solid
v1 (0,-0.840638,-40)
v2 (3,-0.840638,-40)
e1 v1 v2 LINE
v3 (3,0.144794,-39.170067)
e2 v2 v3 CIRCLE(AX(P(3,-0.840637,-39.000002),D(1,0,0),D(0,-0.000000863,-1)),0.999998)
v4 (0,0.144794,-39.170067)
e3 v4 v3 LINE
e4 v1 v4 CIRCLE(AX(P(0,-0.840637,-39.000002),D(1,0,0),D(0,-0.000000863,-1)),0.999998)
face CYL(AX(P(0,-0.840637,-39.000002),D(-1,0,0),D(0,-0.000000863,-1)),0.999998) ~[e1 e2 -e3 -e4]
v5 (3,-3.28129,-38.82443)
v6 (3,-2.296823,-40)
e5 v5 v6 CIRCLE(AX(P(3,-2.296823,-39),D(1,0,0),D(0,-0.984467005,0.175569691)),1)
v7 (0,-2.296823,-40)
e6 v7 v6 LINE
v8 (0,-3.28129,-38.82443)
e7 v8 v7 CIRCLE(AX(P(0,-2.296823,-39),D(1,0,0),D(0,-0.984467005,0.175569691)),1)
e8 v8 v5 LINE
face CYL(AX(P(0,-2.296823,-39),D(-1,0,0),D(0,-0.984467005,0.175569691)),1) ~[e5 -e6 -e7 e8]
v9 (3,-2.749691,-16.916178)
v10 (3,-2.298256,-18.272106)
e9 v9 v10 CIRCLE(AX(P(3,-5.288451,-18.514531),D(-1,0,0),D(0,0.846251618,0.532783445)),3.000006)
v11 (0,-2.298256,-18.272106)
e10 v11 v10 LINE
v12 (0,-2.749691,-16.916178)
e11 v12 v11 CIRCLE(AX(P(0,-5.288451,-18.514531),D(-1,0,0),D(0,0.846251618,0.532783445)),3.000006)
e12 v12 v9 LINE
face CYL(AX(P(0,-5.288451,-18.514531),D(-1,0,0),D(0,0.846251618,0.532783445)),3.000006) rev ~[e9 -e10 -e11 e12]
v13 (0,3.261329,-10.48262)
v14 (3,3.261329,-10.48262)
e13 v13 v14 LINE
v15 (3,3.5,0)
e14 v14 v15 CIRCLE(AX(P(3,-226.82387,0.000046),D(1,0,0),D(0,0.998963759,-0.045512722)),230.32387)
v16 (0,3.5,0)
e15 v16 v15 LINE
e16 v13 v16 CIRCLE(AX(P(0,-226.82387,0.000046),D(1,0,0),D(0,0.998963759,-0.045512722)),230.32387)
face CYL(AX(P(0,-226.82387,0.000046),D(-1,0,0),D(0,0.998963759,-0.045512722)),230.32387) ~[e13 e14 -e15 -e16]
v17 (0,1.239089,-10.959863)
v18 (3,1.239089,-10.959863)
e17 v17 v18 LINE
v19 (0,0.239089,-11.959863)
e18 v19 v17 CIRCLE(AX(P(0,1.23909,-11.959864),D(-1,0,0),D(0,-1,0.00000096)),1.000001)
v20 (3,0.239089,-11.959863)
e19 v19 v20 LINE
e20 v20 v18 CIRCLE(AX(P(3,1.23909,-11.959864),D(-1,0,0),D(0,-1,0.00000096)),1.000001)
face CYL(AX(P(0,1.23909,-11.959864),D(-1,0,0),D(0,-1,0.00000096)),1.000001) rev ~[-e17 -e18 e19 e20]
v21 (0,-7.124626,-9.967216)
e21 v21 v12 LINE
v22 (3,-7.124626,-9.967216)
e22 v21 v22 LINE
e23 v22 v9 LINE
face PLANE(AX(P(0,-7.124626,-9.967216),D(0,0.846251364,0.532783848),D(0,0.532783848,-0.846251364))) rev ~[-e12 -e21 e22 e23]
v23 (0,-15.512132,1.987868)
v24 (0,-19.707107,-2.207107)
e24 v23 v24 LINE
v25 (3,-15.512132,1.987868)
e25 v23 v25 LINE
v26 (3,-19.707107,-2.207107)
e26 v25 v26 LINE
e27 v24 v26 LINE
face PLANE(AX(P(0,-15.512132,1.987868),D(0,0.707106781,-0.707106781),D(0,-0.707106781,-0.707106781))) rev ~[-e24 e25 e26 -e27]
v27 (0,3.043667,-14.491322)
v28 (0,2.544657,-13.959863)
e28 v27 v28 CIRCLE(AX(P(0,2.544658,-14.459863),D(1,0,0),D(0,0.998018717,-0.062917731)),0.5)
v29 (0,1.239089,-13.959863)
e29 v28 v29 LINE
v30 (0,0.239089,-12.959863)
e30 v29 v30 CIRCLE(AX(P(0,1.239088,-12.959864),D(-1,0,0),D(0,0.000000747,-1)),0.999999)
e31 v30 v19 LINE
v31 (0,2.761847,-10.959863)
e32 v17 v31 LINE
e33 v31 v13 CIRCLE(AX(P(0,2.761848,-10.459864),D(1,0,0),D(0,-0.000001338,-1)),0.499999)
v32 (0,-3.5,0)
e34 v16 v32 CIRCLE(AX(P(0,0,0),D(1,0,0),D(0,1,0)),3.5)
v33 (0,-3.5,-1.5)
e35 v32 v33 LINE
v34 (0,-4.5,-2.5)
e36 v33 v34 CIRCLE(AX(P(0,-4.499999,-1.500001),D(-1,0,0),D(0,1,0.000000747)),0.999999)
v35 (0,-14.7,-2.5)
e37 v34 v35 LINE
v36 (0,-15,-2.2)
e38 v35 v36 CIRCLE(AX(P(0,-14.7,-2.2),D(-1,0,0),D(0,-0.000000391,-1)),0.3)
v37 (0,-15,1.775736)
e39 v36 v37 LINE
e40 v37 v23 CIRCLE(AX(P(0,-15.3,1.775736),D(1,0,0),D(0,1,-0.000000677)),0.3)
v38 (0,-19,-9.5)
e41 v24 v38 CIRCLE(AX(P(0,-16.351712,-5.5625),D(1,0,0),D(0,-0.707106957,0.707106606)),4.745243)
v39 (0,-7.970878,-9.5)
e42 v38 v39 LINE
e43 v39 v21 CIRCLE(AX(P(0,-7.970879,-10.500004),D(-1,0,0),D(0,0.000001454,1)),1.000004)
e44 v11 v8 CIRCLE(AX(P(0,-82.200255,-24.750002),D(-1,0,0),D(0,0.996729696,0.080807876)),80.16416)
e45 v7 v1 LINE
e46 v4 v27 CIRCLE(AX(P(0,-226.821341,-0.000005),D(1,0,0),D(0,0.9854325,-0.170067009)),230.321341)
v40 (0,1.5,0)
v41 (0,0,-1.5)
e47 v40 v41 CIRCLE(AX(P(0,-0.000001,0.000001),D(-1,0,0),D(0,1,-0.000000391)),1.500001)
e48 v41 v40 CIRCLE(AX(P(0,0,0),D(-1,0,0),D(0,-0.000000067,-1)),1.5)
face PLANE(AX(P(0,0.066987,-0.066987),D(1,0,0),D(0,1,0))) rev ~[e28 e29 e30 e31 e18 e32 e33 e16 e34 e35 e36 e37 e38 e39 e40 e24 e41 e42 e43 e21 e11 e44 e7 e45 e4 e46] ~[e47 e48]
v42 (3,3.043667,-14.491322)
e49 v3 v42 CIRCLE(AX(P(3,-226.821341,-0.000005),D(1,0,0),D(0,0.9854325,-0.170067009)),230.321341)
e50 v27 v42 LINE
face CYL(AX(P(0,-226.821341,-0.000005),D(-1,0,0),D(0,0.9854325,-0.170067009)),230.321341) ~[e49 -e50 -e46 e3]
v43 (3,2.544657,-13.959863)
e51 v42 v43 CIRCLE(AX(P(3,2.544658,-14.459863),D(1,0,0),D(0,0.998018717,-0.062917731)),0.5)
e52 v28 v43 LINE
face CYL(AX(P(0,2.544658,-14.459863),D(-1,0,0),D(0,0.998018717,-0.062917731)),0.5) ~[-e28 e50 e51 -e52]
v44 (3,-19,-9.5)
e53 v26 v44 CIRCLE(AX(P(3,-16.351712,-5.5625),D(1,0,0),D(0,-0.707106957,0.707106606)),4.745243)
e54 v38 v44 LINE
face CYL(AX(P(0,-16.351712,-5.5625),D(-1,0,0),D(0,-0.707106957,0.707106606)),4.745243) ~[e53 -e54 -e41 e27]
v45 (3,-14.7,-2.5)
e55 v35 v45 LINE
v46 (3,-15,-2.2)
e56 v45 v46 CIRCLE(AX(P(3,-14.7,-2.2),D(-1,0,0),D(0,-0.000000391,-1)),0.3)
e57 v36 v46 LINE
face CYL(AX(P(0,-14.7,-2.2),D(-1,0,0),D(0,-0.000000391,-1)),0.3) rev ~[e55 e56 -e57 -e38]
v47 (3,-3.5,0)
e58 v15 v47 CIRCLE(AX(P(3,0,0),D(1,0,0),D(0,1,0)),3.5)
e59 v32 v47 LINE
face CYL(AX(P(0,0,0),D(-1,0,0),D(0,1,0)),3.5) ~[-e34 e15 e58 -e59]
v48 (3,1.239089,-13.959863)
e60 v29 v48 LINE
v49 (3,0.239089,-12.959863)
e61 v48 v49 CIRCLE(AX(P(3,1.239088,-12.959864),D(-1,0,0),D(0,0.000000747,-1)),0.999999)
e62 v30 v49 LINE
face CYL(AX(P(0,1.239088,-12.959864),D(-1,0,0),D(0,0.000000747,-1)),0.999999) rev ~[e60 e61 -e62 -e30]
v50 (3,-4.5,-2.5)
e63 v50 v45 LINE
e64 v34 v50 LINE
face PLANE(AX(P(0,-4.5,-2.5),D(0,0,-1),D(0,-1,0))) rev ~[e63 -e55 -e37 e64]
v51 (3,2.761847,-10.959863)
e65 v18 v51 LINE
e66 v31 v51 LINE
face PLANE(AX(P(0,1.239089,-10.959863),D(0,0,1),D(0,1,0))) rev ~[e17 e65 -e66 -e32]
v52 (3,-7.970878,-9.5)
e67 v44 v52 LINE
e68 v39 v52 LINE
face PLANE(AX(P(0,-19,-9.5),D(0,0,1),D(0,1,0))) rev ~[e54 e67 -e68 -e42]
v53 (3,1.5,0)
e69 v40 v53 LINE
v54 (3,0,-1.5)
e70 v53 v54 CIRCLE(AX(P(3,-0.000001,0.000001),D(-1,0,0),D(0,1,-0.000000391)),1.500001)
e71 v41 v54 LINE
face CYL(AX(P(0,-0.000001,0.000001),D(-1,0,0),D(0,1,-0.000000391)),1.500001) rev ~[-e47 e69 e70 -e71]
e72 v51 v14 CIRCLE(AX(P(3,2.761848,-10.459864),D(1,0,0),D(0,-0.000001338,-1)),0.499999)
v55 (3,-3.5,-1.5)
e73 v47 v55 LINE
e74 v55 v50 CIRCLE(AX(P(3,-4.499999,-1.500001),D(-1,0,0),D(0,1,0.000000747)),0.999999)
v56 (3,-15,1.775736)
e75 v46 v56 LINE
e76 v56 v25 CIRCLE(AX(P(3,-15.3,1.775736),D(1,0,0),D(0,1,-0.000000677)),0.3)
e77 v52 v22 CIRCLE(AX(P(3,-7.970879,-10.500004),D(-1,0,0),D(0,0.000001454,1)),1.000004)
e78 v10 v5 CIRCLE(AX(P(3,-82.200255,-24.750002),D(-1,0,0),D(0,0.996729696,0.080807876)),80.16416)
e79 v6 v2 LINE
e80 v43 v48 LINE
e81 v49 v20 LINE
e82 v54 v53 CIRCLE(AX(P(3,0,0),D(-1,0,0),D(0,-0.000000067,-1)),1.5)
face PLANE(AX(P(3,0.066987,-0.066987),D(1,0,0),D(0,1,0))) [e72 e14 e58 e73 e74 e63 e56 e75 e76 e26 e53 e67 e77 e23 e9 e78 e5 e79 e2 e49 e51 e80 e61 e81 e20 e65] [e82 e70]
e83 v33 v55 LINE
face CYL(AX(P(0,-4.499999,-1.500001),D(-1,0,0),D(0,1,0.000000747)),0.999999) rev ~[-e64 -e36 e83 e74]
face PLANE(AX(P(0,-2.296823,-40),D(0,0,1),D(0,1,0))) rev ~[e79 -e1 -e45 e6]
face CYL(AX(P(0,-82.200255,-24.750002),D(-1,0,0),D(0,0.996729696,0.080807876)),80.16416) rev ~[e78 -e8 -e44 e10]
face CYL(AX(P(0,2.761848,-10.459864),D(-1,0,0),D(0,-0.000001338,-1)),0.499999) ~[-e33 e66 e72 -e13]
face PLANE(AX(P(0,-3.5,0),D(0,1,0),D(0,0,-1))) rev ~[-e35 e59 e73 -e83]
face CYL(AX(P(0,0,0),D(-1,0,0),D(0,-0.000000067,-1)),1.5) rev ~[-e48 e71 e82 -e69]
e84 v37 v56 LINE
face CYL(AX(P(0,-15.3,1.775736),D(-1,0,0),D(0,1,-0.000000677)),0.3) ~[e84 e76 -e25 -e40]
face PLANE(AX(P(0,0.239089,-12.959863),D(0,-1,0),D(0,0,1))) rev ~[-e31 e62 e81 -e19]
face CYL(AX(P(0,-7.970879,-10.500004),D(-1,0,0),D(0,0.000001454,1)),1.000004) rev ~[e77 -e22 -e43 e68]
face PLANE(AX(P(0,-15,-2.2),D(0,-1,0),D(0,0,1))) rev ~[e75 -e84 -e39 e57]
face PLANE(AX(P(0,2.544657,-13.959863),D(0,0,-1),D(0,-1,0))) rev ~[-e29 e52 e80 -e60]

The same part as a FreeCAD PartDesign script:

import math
import FreeCAD as App
import Part
import Sketcher

doc = App.newDocument("Part")
params = doc.addObject("Spreadsheet::Sheet", "Params")
for row, (alias, value) in enumerate([
    ("sketch1_radius", "0.999999 mm"),
    ("sketch1_radius2", "1 mm"),
    ("sketch1_radius3", "0.999998 mm"),
    ("sketch1_radius4", "0.999999 mm"),
    ("sketch1_radius5", "1.000001 mm"),
    ("pad1_length", "3 mm"),
], start=1):
    params.set(f"A{row}", alias)
    params.set(f"B{row}", "=" + value)
    params.setAlias(f"B{row}", alias)

body = doc.addObject("PartDesign::Body", "Body")

sketch1 = doc.addObject("Sketcher::SketchObject", "Sketch")
body.addObject(sketch1)
sketch1.AttachmentSupport = (doc.YZ_Plane, [""])
sketch1.MapMode = "FlatFace"
sketch1.addGeometry([
    Part.ArcOfCircle(Part.Circle(App.Vector(-226.82387, 0.000046, 0), App.Vector(0, 0, 1), 230.32387), math.radians(-2.608588), math.radians(-0.000012)),
    Part.ArcOfCircle(Part.Circle(App.Vector(0, 0, 0), App.Vector(0, 0, 1), 3.5), math.radians(0), math.radians(180)),
    Part.LineSegment(App.Vector(-3.5, 0, 0), App.Vector(-3.5, -1.5, 0)),
    Part.ArcOfCircle(Part.Circle(App.Vector(-4.499999, -1.500001, 0), App.Vector(0, 0, 1), 0.999999), math.radians(-90.000043), math.radians(0.000043)),
    Part.LineSegment(App.Vector(-4.5, -2.5, 0), App.Vector(-14.7, -2.5, 0)),
    Part.ArcOfCircle(Part.Circle(App.Vector(-14.7, -2.2, 0), App.Vector(0, 0, 1), 0.3), math.radians(-179.999978), math.radians(-90.000022)),
    Part.LineSegment(App.Vector(-15, -2.2, 0), App.Vector(-15, 1.775736, 0)),
    Part.ArcOfCircle(Part.Circle(App.Vector(-15.3, 1.775736, 0), App.Vector(0, 0, 1), 0.3), math.radians(-0.000039), math.radians(135.000043)),
    Part.LineSegment(App.Vector(-15.512132, 1.987868, 0), App.Vector(-19.707107, -2.207107, 0)),
    Part.ArcOfCircle(Part.Circle(App.Vector(-16.351712, -5.5625, 0), App.Vector(0, 0, 1), 4.745243), math.radians(135.000014), math.radians(236.075975)),
    Part.LineSegment(App.Vector(-19, -9.5, 0), App.Vector(-7.970878, -9.5, 0)),
    Part.ArcOfCircle(Part.Circle(App.Vector(-7.970879, -10.500004, 0), App.Vector(0, 0, 1), 1.000004), math.radians(32.193877), math.radians(89.999917)),
    Part.LineSegment(App.Vector(-7.124626, -9.967216, 0), App.Vector(-2.749691, -16.916178, 0)),
    Part.ArcOfCircle(Part.Circle(App.Vector(-5.288451, -18.514531, 0), App.Vector(0, 0, 1), 3.000006), math.radians(4.635029), math.radians(32.193715)),
    Part.ArcOfCircle(Part.Circle(App.Vector(-82.200255, -24.750002, 0), App.Vector(0, 0, 1), 80.16416), math.radians(-10.111835), math.radians(4.635004)),
    Part.ArcOfCircle(Part.Circle(App.Vector(-2.296823, -39, 0), App.Vector(0, 0, 1), 1), math.radians(169.888188), math.radians(269.999985)),
    Part.LineSegment(App.Vector(-2.296823, -40, 0), App.Vector(-0.840638, -40, 0)),
    Part.ArcOfCircle(Part.Circle(App.Vector(-0.840637, -39.000002, 0), App.Vector(0, 0, 1), 0.999998), math.radians(-90.000049), math.radians(-9.791636)),
    Part.ArcOfCircle(Part.Circle(App.Vector(-226.821341, -0.000005, 0), App.Vector(0, 0, 1), 230.321341), math.radians(-9.791715), math.radians(-3.607308)),
    Part.ArcOfCircle(Part.Circle(App.Vector(2.544658, -14.459863, 0), App.Vector(0, 0, 1), 0.5), math.radians(-3.607303), math.radians(90.000059)),
    Part.LineSegment(App.Vector(2.544657, -13.959863, 0), App.Vector(1.239089, -13.959863, 0)),
    Part.ArcOfCircle(Part.Circle(App.Vector(1.239088, -12.959864, 0), App.Vector(0, 0, 1), 0.999999), math.radians(179.999957), math.radians(270.000043)),
    Part.LineSegment(App.Vector(0.239089, -12.959863, 0), App.Vector(0.239089, -11.959863, 0)),
    Part.ArcOfCircle(Part.Circle(App.Vector(1.23909, -11.959864, 0), App.Vector(0, 0, 1), 1.000001), math.radians(90.000055), math.radians(179.999945)),
    Part.LineSegment(App.Vector(1.239089, -10.959863, 0), App.Vector(2.761847, -10.959863, 0)),
    Part.ArcOfCircle(Part.Circle(App.Vector(2.761848, -10.459864, 0), App.Vector(0, 0, 1), 0.499999), math.radians(-90.000077), math.radians(-2.608602)),
    Part.ArcOfCircle(Part.Circle(App.Vector(-0.000001, 0.000001, 0), App.Vector(0, 0, 1), 1.500001), math.radians(-89.999978), math.radians(-0.000022)),
    Part.ArcOfCircle(Part.Circle(App.Vector(0, 0, 0), App.Vector(0, 0, 1), 1.5), math.radians(0.000004), math.radians(269.999996)),
], False)
sketch1.addConstraint([
    Sketcher.Constraint("Coincident", 0, 2, 1, 1),
    Sketcher.Constraint("Coincident", 1, 2, 2, 1),
    Sketcher.Constraint("Coincident", 2, 2, 3, 2),
    Sketcher.Constraint("Coincident", 3, 1, 4, 1),
    Sketcher.Constraint("Coincident", 4, 2, 5, 2),
    Sketcher.Constraint("Coincident", 5, 1, 6, 1),
    Sketcher.Constraint("Coincident", 6, 2, 7, 1),
    Sketcher.Constraint("Coincident", 7, 2, 8, 1),
    Sketcher.Constraint("Coincident", 8, 2, 9, 1),
    Sketcher.Constraint("Coincident", 9, 2, 10, 1),
    Sketcher.Constraint("Coincident", 10, 2, 11, 2),
    Sketcher.Constraint("Coincident", 11, 1, 12, 1),
    Sketcher.Constraint("Coincident", 12, 2, 13, 2),
    Sketcher.Constraint("Coincident", 13, 1, 14, 2),
    Sketcher.Constraint("Coincident", 14, 1, 15, 1),
    Sketcher.Constraint("Coincident", 15, 2, 16, 1),
    Sketcher.Constraint("Coincident", 16, 2, 17, 1),
    Sketcher.Constraint("Coincident", 17, 2, 18, 1),
    Sketcher.Constraint("Coincident", 18, 2, 19, 1),
    Sketcher.Constraint("Coincident", 19, 2, 20, 1),
    Sketcher.Constraint("Coincident", 20, 2, 21, 2),
    Sketcher.Constraint("Coincident", 21, 1, 22, 1),
    Sketcher.Constraint("Coincident", 22, 2, 23, 2),
    Sketcher.Constraint("Coincident", 23, 1, 24, 1),
    Sketcher.Constraint("Coincident", 24, 2, 25, 1),
    Sketcher.Constraint("Coincident", 25, 2, 0, 1),
    Sketcher.Constraint("Coincident", 26, 1, 27, 2),
    Sketcher.Constraint("Coincident", 27, 1, 26, 2),
    Sketcher.Constraint("Vertical", 2),
    Sketcher.Constraint("Horizontal", 4),
    Sketcher.Constraint("Vertical", 6),
    Sketcher.Constraint("Horizontal", 10),
    Sketcher.Constraint("Horizontal", 16),
    Sketcher.Constraint("Horizontal", 20),
    Sketcher.Constraint("Vertical", 22),
    Sketcher.Constraint("Horizontal", 24),
    Sketcher.Constraint("Coincident", 1, 3, -1, 1),
    Sketcher.Constraint("Coincident", 26, 3, -1, 1),
    Sketcher.Constraint("PointOnObject", 0, 2, -1),
    Sketcher.Constraint("PointOnObject", 1, 2, -1),
    Sketcher.Constraint("PointOnObject", 26, 1, -2),
    Sketcher.Constraint("PointOnObject", 27, 1, -1),
    Sketcher.Constraint("Radius", 3, 0.999999),
    Sketcher.Constraint("Radius", 15, 1.0),
    Sketcher.Constraint("Radius", 17, 0.999998),
    Sketcher.Constraint("Radius", 21, 0.999999),
    Sketcher.Constraint("Radius", 23, 1.000001),
    Sketcher.Constraint("Radius", 1, 3.5),
    Sketcher.Constraint("Radius", 5, 0.3),
    Sketcher.Constraint("Radius", 7, 0.3),
    Sketcher.Constraint("Radius", 19, 0.5),
    Sketcher.Constraint("Radius", 25, 0.499999),
    Sketcher.Constraint("Radius", 26, 1.500001),
    Sketcher.Constraint("Radius", 27, 1.5),
    Sketcher.Constraint("DistanceY", 22, 1, 22, 2, 1.0),
    Sketcher.Constraint("DistanceX", 4, 2, 4, 1, 10.2),
    Sketcher.Constraint("DistanceY", 2, 2, 2, 1, 1.5),
    Sketcher.Constraint("DistanceY", 15, 3, -1, 1, 39.0),
    Sketcher.Constraint("DistanceX", 5, 1, -1, 1, 15.0),
    Sketcher.Constraint("DistanceX", 9, 2, -1, 1, 19.0),
    Sketcher.Constraint("DistanceY", 21, 3, 23, 3, 1.0),
    Sketcher.Constraint("DistanceX", 3, 1, 2, 2, 1.0),
    Sketcher.Constraint("DistanceY", 3, 1, 2, 2, 1.0),
    Sketcher.Constraint("DistanceY", 9, 2, 4, 2, 7.0),
    Sketcher.Constraint("DistanceX", 21, 1, 20, 2, 1.0),
    Sketcher.Constraint("DistanceY", 20, 2, 21, 1, 1.0),
    Sketcher.Constraint("DistanceX", 22, 2, 23, 1, 1.0),
    Sketcher.Constraint("DistanceY", 5, 1, -1, 1, 2.2),
    Sketcher.Constraint("DistanceY", 14, 3, -1, 1, 24.750002),
    Sketcher.Constraint("Radius", 0, 230.32387),
    Sketcher.Constraint("Radius", 14, 80.16416),
    Sketcher.Constraint("Radius", 18, 230.321341),
    Sketcher.Constraint("Radius", 9, 4.745243),
    Sketcher.Constraint("Radius", 11, 1.000004),
    Sketcher.Constraint("Radius", 13, 3.000006),
    Sketcher.Constraint("DistanceY", 9, 3, -1, 1, 5.5625),
    Sketcher.Constraint("DistanceY", 14, 1, 13, 3, 20.309899),
    Sketcher.Constraint("DistanceX", 14, 1, 12, 2, 0.531599),
    Sketcher.Constraint("Distance", 8, 5.932591),
    Sketcher.Constraint("DistanceX", 10, 1, 10, 2, 11.029122),
    Sketcher.Constraint("DistanceX", 16, 1, 16, 2, 1.456185),
    Sketcher.Constraint("DistanceX", 20, 2, 20, 1, 1.305568),
    Sketcher.Constraint("DistanceX", 24, 1, 24, 2, 1.522758),
    Sketcher.Constraint("DistanceY", 6, 1, 6, 2, 3.975736),
    Sketcher.Constraint("DistanceX", 11, 3, -1, 1, 7.970879),
    Sketcher.Constraint("DistanceX", 13, 3, -1, 1, 5.288451),
    Sketcher.Constraint("DistanceY", 13, 3, -1, 1, 18.514531),
    Sketcher.Constraint("DistanceX", 18, 3, -1, 1, 226.821341),
    Sketcher.Constraint("DistanceX", -1, 1, 21, 3, 1.239088),
    Sketcher.Constraint("DistanceX", 7, 2, -1, 1, 15.512132),
    Sketcher.Constraint("DistanceX", -1, 1, 25, 2, 3.261329),
    Sketcher.Constraint("DistanceY", 25, 2, -1, 1, 10.48262),
    Sketcher.Constraint("DistanceY", 0, 3, 7, 3, 1.77569),
    Sketcher.Constraint("DistanceY", 18, 3, 7, 3, 1.775742),
    Sketcher.Constraint("DistanceX", 13, 3, 19, 3, 7.833108),
    Sketcher.Constraint("DistanceX", 10, 2, 11, 1, 0.846252),
    Sketcher.Constraint("DistanceY", 13, 1, 12, 2, 1.355928),
    Sketcher.Constraint("DistanceX", 13, 1, 16, 2, 1.457618),
    Sketcher.Constraint("DistanceX", 17, 3, 17, 2, 0.985431),
    Sketcher.Constraint("DistanceX", 19, 3, 18, 2, 0.499009),
])
sketch1.setExpression("Constraints[42]", "Params.sketch1_radius")
sketch1.setExpression("Constraints[43]", "Params.sketch1_radius2")
sketch1.setExpression("Constraints[44]", "Params.sketch1_radius3")
sketch1.setExpression("Constraints[45]", "Params.sketch1_radius4")
sketch1.setExpression("Constraints[46]", "Params.sketch1_radius5")
pad1 = doc.addObject("PartDesign::Pad", "Pad")
body.addObject(pad1)
pad1.Profile = sketch1
pad1.setExpression("Length", "Params.pad1_length")

doc.recompute()
